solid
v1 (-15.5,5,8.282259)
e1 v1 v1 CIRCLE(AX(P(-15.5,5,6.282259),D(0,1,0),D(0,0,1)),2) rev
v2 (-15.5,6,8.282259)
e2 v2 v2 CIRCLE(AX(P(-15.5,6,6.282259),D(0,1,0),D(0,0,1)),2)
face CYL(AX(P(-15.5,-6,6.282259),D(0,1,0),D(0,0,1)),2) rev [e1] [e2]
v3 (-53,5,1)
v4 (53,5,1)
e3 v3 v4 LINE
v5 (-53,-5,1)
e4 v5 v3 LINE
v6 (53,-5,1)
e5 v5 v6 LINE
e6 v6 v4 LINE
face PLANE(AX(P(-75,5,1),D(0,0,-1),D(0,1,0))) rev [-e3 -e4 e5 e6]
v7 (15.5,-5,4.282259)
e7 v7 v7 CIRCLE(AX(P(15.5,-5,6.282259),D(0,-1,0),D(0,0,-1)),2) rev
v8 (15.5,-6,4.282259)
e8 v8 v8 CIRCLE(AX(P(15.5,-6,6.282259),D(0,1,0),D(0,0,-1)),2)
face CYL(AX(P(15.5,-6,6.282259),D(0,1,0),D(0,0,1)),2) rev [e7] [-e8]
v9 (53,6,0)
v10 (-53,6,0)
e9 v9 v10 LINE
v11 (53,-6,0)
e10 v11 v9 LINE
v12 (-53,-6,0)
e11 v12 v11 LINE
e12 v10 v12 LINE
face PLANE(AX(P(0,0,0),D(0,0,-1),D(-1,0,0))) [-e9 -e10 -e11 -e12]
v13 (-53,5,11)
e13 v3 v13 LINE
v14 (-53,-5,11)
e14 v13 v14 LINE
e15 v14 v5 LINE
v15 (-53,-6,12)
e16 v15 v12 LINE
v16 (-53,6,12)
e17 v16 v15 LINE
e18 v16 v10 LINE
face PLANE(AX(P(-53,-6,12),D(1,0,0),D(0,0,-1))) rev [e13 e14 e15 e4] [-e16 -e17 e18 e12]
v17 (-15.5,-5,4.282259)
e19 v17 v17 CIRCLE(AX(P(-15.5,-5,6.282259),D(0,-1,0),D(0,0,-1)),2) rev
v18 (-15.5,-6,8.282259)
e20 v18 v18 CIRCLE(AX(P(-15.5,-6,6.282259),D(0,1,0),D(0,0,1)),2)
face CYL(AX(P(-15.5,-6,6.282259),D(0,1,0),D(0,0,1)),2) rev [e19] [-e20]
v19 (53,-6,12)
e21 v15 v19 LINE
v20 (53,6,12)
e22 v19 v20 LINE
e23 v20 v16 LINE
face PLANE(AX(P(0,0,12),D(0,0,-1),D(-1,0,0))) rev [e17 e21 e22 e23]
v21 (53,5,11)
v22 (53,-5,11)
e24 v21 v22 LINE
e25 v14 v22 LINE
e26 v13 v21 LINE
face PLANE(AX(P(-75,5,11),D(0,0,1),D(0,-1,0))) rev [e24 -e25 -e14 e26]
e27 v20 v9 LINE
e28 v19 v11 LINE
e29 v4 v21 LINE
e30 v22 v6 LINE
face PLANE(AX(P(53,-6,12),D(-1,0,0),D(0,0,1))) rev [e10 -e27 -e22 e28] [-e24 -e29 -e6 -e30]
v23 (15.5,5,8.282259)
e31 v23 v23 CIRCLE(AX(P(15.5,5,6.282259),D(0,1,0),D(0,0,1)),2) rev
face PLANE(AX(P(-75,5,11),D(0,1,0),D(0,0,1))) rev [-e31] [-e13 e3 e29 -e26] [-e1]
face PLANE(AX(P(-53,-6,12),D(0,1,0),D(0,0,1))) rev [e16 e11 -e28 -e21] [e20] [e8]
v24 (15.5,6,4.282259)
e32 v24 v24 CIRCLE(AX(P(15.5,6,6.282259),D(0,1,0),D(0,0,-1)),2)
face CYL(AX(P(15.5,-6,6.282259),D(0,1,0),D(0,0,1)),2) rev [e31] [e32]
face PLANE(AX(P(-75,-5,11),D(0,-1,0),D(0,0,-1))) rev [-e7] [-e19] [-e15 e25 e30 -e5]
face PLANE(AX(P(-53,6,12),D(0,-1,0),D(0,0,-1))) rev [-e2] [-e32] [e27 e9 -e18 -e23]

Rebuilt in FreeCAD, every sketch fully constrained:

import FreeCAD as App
import Part
import Sketcher

V = App.Vector

doc = App.newDocument("Part")
params = doc.addObject("Spreadsheet::Sheet", "Params")
for row, (alias, value) in enumerate([
    ("sketch1_width", "106 mm"),
    ("sketch1_height", "12 mm"),
    ("pad1_length", "12 mm"),
    ("sketch2_diameter", "4 mm"),
    ("pocket1_length", "12 mm"),
    ("sketch3_width", "10 mm"),
    ("pocket2_length", "128 mm"),
], start=1):
    params.set(f"A{row}", alias)
    params.set(f"B{row}", "=" + value)
    params.setAlias(f"B{row}", alias)

body = doc.addObject("PartDesign::Body", "Body")

# Sketch on XY plane
sketch1 = body.newObject("Sketcher::SketchObject", "Sketch")
sketch1.AttachmentSupport = (doc.getObject("XY_Plane"), [""])
sketch1.MapMode = "FlatFace"
sketch1.addGeometry(Part.LineSegment(V(-53, 6, 0), V(-53, -6, 0)), False)
sketch1.addGeometry(Part.LineSegment(V(-53, -6, 0), V(53, -6, 0)), False)
sketch1.addGeometry(Part.LineSegment(V(53, -6, 0), V(53, 6, 0)), False)
sketch1.addGeometry(Part.LineSegment(V(53, 6, 0), V(-53, 6, 0)), False)
sketch1.addConstraint(Sketcher.Constraint("Coincident", 0, 2, 1, 1))
sketch1.addConstraint(Sketcher.Constraint("Coincident", 1, 2, 2, 1))
sketch1.addConstraint(Sketcher.Constraint("Coincident", 2, 2, 3, 1))
sketch1.addConstraint(Sketcher.Constraint("Coincident", 3, 2, 0, 1))
sketch1.addConstraint(Sketcher.Constraint("Vertical", 0))
sketch1.addConstraint(Sketcher.Constraint("Horizontal", 1))
sketch1.addConstraint(Sketcher.Constraint("Vertical", 2))
sketch1.addConstraint(Sketcher.Constraint("Horizontal", 3))
sketch1.addConstraint(Sketcher.Constraint("Symmetric", 0, 2, 2, 2, -1, 1))
sketch1.addConstraint(Sketcher.Constraint("DistanceX", 1, 1, 1, 2, 106.0))
sketch1.addConstraint(Sketcher.Constraint("DistanceY", 0, 2, 0, 1, 12.0))
sketch1.setExpression("Constraints[9]", "Params.sketch1_width")
sketch1.setExpression("Constraints[10]", "Params.sketch1_height")
pad1 = body.newObject("PartDesign::Pad", "Pad")
pad1.Profile = sketch1
pad1.setExpression("Length", "Params.pad1_length")

# Sketch on XZ plane
sketch2 = body.newObject("Sketcher::SketchObject", "Sketch001")
sketch2.AttachmentSupport = (doc.getObject("XZ_Plane"), [""])
sketch2.MapMode = "FlatFace"
sketch2.AttachmentOffset = App.Placement(V(0, 0, -6), App.Rotation())
sketch2.addGeometry(Part.Circle(V(-15.5, 6.3, 0), V(0, 0, 1), 2), False)
sketch2.addGeometry(Part.Circle(V(15.5, 6.3, 0), V(0, 0, 1), 2), False)
sketch2.addConstraint(Sketcher.Constraint("Equal", 0, 1))
sketch2.addConstraint(Sketcher.Constraint("Symmetric", 0, 3, 1, 3, -2))
sketch2.addConstraint(Sketcher.Constraint("Diameter", 0, 4.0))
sketch2.addConstraint(Sketcher.Constraint("DistanceX", 0, 3, 1, 3, 31.0))
sketch2.addConstraint(Sketcher.Constraint("DistanceY", -1, 1, 0, 3, 6.282259))
sketch2.setExpression("Constraints[2]", "Params.sketch2_diameter")
pocket1 = body.newObject("PartDesign::Pocket", "Pocket")
pocket1.Profile = sketch2
pocket1.setExpression("Length", "Params.pocket1_length")
pocket1.Reversed = True

# Sketch on YZ plane
sketch3 = body.newObject("Sketcher::SketchObject", "Sketch002")
sketch3.AttachmentSupport = (doc.getObject("YZ_Plane"), [""])
sketch3.MapMode = "FlatFace"
sketch3.AttachmentOffset = App.Placement(V(0, 0, 53), App.Rotation())
sketch3.addGeometry(Part.LineSegment(V(5, 11, 0), V(-5, 11, 0)), False)
sketch3.addGeometry(Part.LineSegment(V(-5, 11, 0), V(-5, 1, 0)), False)
sketch3.addGeometry(Part.LineSegment(V(-5, 1, 0), V(5, 1, 0)), False)
sketch3.addGeometry(Part.LineSegment(V(5, 1, 0), V(5, 11, 0)), False)
sketch3.addConstraint(Sketcher.Constraint("Coincident", 0, 2, 1, 1))
sketch3.addConstraint(Sketcher.Constraint("Coincident", 1, 2, 2, 1))
sketch3.addConstraint(Sketcher.Constraint("Coincident", 2, 2, 3, 1))
sketch3.addConstraint(Sketcher.Constraint("Coincident", 3, 2, 0, 1))
sketch3.addConstraint(Sketcher.Constraint("Horizontal", 0))
sketch3.addConstraint(Sketcher.Constraint("Vertical", 1))
sketch3.addConstraint(Sketcher.Constraint("Horizontal", 2))
sketch3.addConstraint(Sketcher.Constraint("Vertical", 3))
sketch3.addConstraint(Sketcher.Constraint("Equal", 2, 1))
sketch3.addConstraint(Sketcher.Constraint("DistanceX", 0, 2, 0, 1, 10.0))
sketch3.addConstraint(Sketcher.Constraint("DistanceX", 0, 2, -1, 1, 5.0))
sketch3.addConstraint(Sketcher.Constraint("DistanceY", -1, 1, 0, 2, 11.0))
sketch3.setExpression("Constraints[9]", "Params.sketch3_width")
pocket2 = body.newObject("PartDesign::Pocket", "Pocket001")
pocket2.Profile = sketch3
pocket2.setExpression("Length", "Params.pocket2_length")

doc.recompute()
